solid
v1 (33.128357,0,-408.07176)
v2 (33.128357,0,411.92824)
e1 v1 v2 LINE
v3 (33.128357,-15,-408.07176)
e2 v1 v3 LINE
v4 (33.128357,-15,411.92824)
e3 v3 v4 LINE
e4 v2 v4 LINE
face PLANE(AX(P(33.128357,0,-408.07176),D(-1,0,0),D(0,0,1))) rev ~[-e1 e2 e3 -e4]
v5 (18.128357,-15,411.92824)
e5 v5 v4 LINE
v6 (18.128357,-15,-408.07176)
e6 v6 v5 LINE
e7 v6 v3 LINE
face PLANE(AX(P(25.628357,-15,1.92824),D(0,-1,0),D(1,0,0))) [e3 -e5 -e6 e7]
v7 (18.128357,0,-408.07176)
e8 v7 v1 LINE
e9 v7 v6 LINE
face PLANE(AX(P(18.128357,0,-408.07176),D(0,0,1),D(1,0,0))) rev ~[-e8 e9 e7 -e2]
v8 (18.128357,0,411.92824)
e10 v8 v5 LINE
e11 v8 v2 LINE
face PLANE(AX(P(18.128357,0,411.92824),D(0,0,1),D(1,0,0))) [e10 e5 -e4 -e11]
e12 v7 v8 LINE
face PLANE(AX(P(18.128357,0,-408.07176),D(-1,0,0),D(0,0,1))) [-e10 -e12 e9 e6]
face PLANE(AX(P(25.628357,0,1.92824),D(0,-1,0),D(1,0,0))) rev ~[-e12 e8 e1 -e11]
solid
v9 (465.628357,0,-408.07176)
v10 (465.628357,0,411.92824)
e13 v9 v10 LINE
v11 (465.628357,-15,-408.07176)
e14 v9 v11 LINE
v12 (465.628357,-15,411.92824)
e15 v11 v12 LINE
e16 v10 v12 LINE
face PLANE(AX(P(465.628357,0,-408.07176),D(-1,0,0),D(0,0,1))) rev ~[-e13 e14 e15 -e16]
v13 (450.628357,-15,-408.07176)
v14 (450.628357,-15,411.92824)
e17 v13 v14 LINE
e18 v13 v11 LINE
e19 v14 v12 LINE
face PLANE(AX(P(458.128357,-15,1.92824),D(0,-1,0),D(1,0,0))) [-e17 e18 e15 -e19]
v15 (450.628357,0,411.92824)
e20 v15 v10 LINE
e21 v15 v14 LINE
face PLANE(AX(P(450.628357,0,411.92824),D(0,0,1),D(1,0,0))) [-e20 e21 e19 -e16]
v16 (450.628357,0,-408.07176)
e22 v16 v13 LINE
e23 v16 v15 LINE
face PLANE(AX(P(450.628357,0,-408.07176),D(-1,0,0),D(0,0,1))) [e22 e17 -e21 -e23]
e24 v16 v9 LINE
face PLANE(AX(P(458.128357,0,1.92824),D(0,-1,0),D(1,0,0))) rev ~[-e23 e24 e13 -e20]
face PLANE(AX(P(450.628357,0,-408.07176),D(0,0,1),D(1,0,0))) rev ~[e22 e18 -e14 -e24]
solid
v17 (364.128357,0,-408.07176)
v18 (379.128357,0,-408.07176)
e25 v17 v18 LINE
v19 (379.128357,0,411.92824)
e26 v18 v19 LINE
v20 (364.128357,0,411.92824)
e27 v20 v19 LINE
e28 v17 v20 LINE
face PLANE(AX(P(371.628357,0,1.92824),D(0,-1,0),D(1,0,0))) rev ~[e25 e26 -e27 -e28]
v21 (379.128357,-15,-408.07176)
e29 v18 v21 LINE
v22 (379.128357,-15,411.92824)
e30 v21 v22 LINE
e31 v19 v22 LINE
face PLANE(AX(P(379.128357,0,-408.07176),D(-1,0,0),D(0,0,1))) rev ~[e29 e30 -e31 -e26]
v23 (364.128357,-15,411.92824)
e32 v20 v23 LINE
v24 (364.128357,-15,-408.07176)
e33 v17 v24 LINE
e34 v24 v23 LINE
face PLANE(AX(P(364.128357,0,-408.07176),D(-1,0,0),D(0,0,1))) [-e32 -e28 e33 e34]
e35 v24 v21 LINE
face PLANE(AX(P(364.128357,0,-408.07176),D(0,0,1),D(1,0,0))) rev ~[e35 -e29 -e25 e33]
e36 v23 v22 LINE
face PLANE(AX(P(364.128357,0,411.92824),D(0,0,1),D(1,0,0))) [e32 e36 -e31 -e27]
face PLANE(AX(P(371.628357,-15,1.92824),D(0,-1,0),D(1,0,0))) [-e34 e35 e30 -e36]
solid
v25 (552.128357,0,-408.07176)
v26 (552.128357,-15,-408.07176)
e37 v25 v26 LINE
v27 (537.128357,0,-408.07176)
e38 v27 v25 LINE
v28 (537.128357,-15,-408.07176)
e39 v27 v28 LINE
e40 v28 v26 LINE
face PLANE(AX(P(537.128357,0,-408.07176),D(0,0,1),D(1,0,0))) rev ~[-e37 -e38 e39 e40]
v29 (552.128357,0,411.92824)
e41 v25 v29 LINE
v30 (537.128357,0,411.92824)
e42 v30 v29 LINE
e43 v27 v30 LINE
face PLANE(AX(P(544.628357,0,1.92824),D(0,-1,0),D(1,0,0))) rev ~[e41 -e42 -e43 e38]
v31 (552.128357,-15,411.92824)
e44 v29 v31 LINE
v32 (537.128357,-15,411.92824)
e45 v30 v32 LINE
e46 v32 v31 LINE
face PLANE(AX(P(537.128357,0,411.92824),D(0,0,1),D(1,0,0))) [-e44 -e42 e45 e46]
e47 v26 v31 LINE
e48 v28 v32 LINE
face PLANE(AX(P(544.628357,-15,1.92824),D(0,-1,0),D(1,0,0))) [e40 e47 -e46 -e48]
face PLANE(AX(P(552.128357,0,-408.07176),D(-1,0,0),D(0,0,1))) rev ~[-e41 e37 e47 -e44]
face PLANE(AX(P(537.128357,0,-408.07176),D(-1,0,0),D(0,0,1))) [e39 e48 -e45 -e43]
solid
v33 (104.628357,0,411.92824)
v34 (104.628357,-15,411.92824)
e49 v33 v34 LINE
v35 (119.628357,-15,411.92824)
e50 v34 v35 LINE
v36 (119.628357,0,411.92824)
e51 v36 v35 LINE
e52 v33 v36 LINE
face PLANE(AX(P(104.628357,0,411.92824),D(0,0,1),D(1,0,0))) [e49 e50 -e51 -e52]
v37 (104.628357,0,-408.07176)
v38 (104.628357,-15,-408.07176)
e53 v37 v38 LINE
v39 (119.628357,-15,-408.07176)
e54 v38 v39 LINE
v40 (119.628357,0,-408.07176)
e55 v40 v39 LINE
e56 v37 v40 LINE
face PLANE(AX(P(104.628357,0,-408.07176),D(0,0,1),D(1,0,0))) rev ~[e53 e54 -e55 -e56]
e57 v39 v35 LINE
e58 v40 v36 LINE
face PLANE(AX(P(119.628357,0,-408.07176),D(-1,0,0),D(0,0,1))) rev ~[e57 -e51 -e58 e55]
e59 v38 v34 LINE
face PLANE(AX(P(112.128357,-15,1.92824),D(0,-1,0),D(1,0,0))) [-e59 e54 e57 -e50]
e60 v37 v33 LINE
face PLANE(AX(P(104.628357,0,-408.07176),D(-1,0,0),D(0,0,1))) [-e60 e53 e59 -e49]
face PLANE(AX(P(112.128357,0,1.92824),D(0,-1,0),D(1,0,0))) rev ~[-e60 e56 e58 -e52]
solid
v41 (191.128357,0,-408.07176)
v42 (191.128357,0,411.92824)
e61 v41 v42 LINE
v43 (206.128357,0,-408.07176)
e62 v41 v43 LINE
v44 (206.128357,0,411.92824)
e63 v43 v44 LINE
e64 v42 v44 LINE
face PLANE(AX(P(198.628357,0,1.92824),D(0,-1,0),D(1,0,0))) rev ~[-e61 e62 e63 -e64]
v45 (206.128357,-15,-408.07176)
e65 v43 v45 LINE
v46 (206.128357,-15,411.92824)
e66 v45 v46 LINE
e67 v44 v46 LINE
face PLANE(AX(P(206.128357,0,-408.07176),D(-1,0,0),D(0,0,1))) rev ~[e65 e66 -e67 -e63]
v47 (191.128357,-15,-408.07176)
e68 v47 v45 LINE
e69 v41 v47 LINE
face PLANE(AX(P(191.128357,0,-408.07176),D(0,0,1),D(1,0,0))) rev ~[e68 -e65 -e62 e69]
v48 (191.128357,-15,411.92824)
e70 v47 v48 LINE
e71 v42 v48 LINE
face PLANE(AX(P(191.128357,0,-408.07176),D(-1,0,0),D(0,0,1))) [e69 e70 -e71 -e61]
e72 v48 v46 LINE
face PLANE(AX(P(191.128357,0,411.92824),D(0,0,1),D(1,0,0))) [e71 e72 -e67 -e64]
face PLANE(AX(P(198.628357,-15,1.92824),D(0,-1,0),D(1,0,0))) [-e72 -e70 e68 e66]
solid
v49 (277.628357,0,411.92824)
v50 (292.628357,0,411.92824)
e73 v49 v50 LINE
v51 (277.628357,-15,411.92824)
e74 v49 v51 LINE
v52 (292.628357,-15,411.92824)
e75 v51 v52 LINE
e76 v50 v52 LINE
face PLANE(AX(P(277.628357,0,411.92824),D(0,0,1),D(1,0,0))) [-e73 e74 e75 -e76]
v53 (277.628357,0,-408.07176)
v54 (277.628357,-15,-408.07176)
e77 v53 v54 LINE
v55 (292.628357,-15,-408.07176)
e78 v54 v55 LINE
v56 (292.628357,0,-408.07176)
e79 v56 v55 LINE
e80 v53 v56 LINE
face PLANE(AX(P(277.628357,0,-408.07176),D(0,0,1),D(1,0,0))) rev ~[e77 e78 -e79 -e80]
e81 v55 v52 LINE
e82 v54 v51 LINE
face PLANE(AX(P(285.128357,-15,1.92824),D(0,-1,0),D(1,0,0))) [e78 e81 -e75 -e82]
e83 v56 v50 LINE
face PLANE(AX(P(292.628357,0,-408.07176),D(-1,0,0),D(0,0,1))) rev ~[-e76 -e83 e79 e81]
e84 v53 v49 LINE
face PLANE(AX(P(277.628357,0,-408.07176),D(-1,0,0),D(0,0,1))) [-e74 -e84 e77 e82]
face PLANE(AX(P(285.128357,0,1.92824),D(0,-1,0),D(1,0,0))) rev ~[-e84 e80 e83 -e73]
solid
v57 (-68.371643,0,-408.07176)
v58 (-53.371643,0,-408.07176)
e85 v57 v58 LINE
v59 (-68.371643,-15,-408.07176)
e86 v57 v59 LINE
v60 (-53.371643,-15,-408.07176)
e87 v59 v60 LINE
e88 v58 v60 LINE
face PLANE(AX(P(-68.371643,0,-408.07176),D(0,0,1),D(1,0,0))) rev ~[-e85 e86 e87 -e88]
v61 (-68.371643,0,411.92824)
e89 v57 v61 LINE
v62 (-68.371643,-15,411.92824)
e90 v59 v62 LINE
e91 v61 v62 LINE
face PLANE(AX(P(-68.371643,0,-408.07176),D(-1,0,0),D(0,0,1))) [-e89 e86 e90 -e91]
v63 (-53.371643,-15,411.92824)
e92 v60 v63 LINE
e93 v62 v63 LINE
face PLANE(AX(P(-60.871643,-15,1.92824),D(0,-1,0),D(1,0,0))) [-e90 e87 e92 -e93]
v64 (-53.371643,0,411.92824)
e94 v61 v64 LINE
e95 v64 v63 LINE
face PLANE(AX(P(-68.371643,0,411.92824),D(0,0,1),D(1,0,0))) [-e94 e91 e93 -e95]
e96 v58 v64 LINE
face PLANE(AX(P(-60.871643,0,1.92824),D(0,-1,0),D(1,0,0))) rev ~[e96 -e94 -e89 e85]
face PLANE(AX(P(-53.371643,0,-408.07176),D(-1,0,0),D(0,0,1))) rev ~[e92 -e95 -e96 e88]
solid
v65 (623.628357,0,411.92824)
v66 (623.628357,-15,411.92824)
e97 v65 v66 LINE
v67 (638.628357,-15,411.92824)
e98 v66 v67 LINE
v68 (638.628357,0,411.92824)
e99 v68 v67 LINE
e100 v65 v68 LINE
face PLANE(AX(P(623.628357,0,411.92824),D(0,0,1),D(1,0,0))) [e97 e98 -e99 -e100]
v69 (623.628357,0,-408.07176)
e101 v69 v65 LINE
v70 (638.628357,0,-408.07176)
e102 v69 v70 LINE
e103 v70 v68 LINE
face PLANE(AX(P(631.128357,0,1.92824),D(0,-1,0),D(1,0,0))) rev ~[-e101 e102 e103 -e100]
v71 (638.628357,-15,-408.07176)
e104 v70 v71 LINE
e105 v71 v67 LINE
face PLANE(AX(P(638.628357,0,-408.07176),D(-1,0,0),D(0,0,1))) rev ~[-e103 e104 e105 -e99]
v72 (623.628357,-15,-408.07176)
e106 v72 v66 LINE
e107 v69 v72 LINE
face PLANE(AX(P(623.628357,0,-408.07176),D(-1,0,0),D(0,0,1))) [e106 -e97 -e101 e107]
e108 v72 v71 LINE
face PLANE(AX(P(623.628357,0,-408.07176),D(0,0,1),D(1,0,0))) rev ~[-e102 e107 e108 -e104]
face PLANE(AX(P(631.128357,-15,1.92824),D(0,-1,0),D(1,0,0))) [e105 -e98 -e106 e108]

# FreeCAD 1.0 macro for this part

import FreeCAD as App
import Part
import Sketcher

V = App.Vector

doc = App.newDocument("Part")
body = doc.addObject("PartDesign::Body", "Body")
body.AllowCompound = True

# Sketch on XZ plane
sketch1 = body.newObject("Sketcher::SketchObject", "Sketch")
sketch1.AttachmentSupport = (doc.getObject("XZ_Plane"), [""])
sketch1.MapMode = "FlatFace"
sketch1.addGeometry([
    Part.LineSegment(V(-68.371643, 411.92824, 0), V(-68.371643, -408.07176, 0)),  # 0
    Part.LineSegment(V(-68.371643, -408.07176, 0), V(-53.371643, -408.07176, 0)),  # 1
    Part.LineSegment(V(-53.371643, -408.07176, 0), V(-53.371643, 411.92824, 0)),  # 2
    Part.LineSegment(V(-53.371643, 411.92824, 0), V(-68.371643, 411.92824, 0)),  # 3
    Part.LineSegment(V(18.128357, 411.92824, 0), V(18.128357, -408.07176, 0)),  # 4
    Part.LineSegment(V(18.128357, -408.07176, 0), V(33.128357, -408.07176, 0)),  # 5
    Part.LineSegment(V(33.128357, -408.07176, 0), V(33.128357, 411.92824, 0)),  # 6
    Part.LineSegment(V(33.128357, 411.92824, 0), V(18.128357, 411.92824, 0)),  # 7
    Part.LineSegment(V(104.628357, 411.92824, 0), V(104.628357, -408.07176, 0)),  # 8
    Part.LineSegment(V(104.628357, -408.07176, 0), V(119.628357, -408.07176, 0)),  # 9
    Part.LineSegment(V(119.628357, -408.07176, 0), V(119.628357, 411.92824, 0)),  # 10
    Part.LineSegment(V(119.628357, 411.92824, 0), V(104.628357, 411.92824, 0)),  # 11
    Part.LineSegment(V(191.128357, 411.92824, 0), V(191.128357, -408.07176, 0)),  # 12
    Part.LineSegment(V(191.128357, -408.07176, 0), V(206.128357, -408.07176, 0)),  # 13
    Part.LineSegment(V(206.128357, -408.07176, 0), V(206.128357, 411.92824, 0)),  # 14
    Part.LineSegment(V(206.128357, 411.92824, 0), V(191.128357, 411.92824, 0)),  # 15
    Part.LineSegment(V(277.628357, 411.92824, 0), V(277.628357, -408.07176, 0)),  # 16
    Part.LineSegment(V(277.628357, -408.07176, 0), V(292.628357, -408.07176, 0)),  # 17
    Part.LineSegment(V(292.628357, -408.07176, 0), V(292.628357, 411.92824, 0)),  # 18
    Part.LineSegment(V(292.628357, 411.92824, 0), V(277.628357, 411.92824, 0)),  # 19
    Part.LineSegment(V(364.128357, 411.92824, 0), V(364.128357, -408.07176, 0)),  # 20
    Part.LineSegment(V(364.128357, -408.07176, 0), V(379.128357, -408.07176, 0)),  # 21
    Part.LineSegment(V(379.128357, -408.07176, 0), V(379.128357, 411.92824, 0)),  # 22
    Part.LineSegment(V(379.128357, 411.92824, 0), V(364.128357, 411.92824, 0)),  # 23
    Part.LineSegment(V(450.628357, 411.92824, 0), V(450.628357, -408.07176, 0)),  # 24
    Part.LineSegment(V(450.628357, -408.07176, 0), V(465.628357, -408.07176, 0)),  # 25
    Part.LineSegment(V(465.628357, -408.07176, 0), V(465.628357, 411.92824, 0)),  # 26
    Part.LineSegment(V(465.628357, 411.92824, 0), V(450.628357, 411.92824, 0)),  # 27
    Part.LineSegment(V(537.128357, 411.92824, 0), V(537.128357, -408.07176, 0)),  # 28
    Part.LineSegment(V(537.128357, -408.07176, 0), V(552.128357, -408.07176, 0)),  # 29
    Part.LineSegment(V(552.128357, -408.07176, 0), V(552.128357, 411.92824, 0)),  # 30
    Part.LineSegment(V(552.128357, 411.92824, 0), V(537.128357, 411.92824, 0)),  # 31
    Part.LineSegment(V(623.628357, 411.92824, 0), V(623.628357, -408.07176, 0)),  # 32
    Part.LineSegment(V(623.628357, -408.07176, 0), V(638.628357, -408.07176, 0)),  # 33
    Part.LineSegment(V(638.628357, -408.07176, 0), V(638.628357, 411.92824, 0)),  # 34
    Part.LineSegment(V(638.628357, 411.92824, 0), V(623.628357, 411.92824, 0)),  # 35
], False)
sketch1.addConstraint([
    Sketcher.Constraint("Coincident", 0, 2, 1, 1),
    Sketcher.Constraint("Coincident", 1, 2, 2, 1),
    Sketcher.Constraint("Coincident", 2, 2, 3, 1),
    Sketcher.Constraint("Coincident", 3, 2, 0, 1),
    Sketcher.Constraint("Coincident", 4, 2, 5, 1),
    Sketcher.Constraint("Coincident", 5, 2, 6, 1),
    Sketcher.Constraint("Coincident", 6, 2, 7, 1),
    Sketcher.Constraint("Coincident", 7, 2, 4, 1),
    Sketcher.Constraint("Coincident", 8, 2, 9, 1),
    Sketcher.Constraint("Coincident", 9, 2, 10, 1),
    Sketcher.Constraint("Coincident", 10, 2, 11, 1),
    Sketcher.Constraint("Coincident", 11, 2, 8, 1),
    Sketcher.Constraint("Coincident", 12, 2, 13, 1),
    Sketcher.Constraint("Coincident", 13, 2, 14, 1),
    Sketcher.Constraint("Coincident", 14, 2, 15, 1),
    Sketcher.Constraint("Coincident", 15, 2, 12, 1),
    Sketcher.Constraint("Coincident", 16, 2, 17, 1),
    Sketcher.Constraint("Coincident", 17, 2, 18, 1),
    Sketcher.Constraint("Coincident", 18, 2, 19, 1),
    Sketcher.Constraint("Coincident", 19, 2, 16, 1),
    Sketcher.Constraint("Coincident", 20, 2, 21, 1),
    Sketcher.Constraint("Coincident", 21, 2, 22, 1),
    Sketcher.Constraint("Coincident", 22, 2, 23, 1),
    Sketcher.Constraint("Coincident", 23, 2, 20, 1),
    Sketcher.Constraint("Coincident", 24, 2, 25, 1),
    Sketcher.Constraint("Coincident", 25, 2, 26, 1),
    Sketcher.Constraint("Coincident", 26, 2, 27, 1),
    Sketcher.Constraint("Coincident", 27, 2, 24, 1),
    Sketcher.Constraint("Coincident", 28, 2, 29, 1),
    Sketcher.Constraint("Coincident", 29, 2, 30, 1),
    Sketcher.Constraint("Coincident", 30, 2, 31, 1),
    Sketcher.Constraint("Coincident", 31, 2, 28, 1),
    Sketcher.Constraint("Coincident", 32, 2, 33, 1),
    Sketcher.Constraint("Coincident", 33, 2, 34, 1),
    Sketcher.Constraint("Coincident", 34, 2, 35, 1),
    Sketcher.Constraint("Coincident", 35, 2, 32, 1),
    Sketcher.Constraint("Vertical", 0),
    Sketcher.Constraint("Horizontal", 1),
    Sketcher.Constraint("Vertical", 2),
    Sketcher.Constraint("Horizontal", 3),
    Sketcher.Constraint("Vertical", 4),
    Sketcher.Constraint("Horizontal", 5),
    Sketcher.Constraint("Vertical", 6),
    Sketcher.Constraint("Horizontal", 7),
    Sketcher.Constraint("Vertical", 8),
    Sketcher.Constraint("Horizontal", 9),
    Sketcher.Constraint("Vertical", 10),
    Sketcher.Constraint("Horizontal", 11),
    Sketcher.Constraint("Vertical", 12),
    Sketcher.Constraint("Horizontal", 13),
    Sketcher.Constraint("Vertical", 14),
    Sketcher.Constraint("Horizontal", 15),
    Sketcher.Constraint("Vertical", 16),
    Sketcher.Constraint("Horizontal", 17),
    Sketcher.Constraint("Vertical", 18),
    Sketcher.Constraint("Horizontal", 19),
    Sketcher.Constraint("Vertical", 20),
    Sketcher.Constraint("Horizontal", 21),
    Sketcher.Constraint("Vertical", 22),
    Sketcher.Constraint("Horizontal", 23),
    Sketcher.Constraint("Vertical", 24),
    Sketcher.Constraint("Horizontal", 25),
    Sketcher.Constraint("Vertical", 26),
    Sketcher.Constraint("Horizontal", 27),
    Sketcher.Constraint("Vertical", 28),
    Sketcher.Constraint("Horizontal", 29),
    Sketcher.Constraint("Vertical", 30),
    Sketcher.Constraint("Horizontal", 31),
    Sketcher.Constraint("Vertical", 32),
    Sketcher.Constraint("Horizontal", 33),
    Sketcher.Constraint("Vertical", 34),
    Sketcher.Constraint("Horizontal", 35),
    Sketcher.Constraint("Horizontal", 1, 2, 4, 2),
    Sketcher.Constraint("Horizontal", 3, 2, 6, 2),
    Sketcher.Constraint("Horizontal", 5, 2, 8, 2),
    Sketcher.Constraint("Horizontal", 7, 2, 10, 2),
    Sketcher.Constraint("Horizontal", 9, 2, 12, 2),
    Sketcher.Constraint("Horizontal", 11, 2, 14, 2),
    Sketcher.Constraint("Horizontal", 13, 2, 16, 2),
    Sketcher.Constraint("Horizontal", 15, 2, 18, 2),
    Sketcher.Constraint("Horizontal", 17, 2, 20, 2),
    Sketcher.Constraint("Horizontal", 19, 2, 22, 2),
    Sketcher.Constraint("Horizontal", 21, 2, 24, 2),
    Sketcher.Constraint("Horizontal", 23, 2, 26, 2),
    Sketcher.Constraint("Horizontal", 25, 2, 28, 2),
    Sketcher.Constraint("Horizontal", 27, 2, 30, 2),
    Sketcher.Constraint("Horizontal", 29, 2, 32, 2),
    Sketcher.Constraint("Horizontal", 31, 2, 34, 2),
    Sketcher.Constraint("Equal", 3, 5),
    Sketcher.Constraint("Equal", 7, 9),
    Sketcher.Constraint("Equal", 11, 13),
    Sketcher.Constraint("Equal", 15, 17),
    Sketcher.Constraint("Equal", 19, 21),
    Sketcher.Constraint("Equal", 23, 25),
    Sketcher.Constraint("Equal", 27, 29),
    Sketcher.Constraint("Equal", 31, 33),
    Sketcher.Constraint("DistanceX", 1, 1, 1, 2, 15.0),
    Sketcher.Constraint("DistanceY", 0, 2, 0, 1, 820.0),
    Sketcher.Constraint("DistanceX", 1, 2, 8, 2, 158.0),
    Sketcher.Constraint("DistanceX", 5, 2, 12, 2, 158.0),
    Sketcher.Constraint("DistanceX", 9, 2, 16, 2, 158.0),
    Sketcher.Constraint("DistanceX", 13, 2, 20, 2, 158.0),
    Sketcher.Constraint("DistanceX", 17, 2, 24, 2, 158.0),
    Sketcher.Constraint("DistanceX", 21, 2, 28, 2, 158.0),
    Sketcher.Constraint("DistanceX", 25, 2, 32, 2, 158.0),
    Sketcher.Constraint("DistanceX", 1, 2, 4, 2, 71.5),
    Sketcher.Constraint("DistanceY", 0, 2, -1, 1, 408.07176),
    Sketcher.Constraint("DistanceX", 0, 2, -1, 1, 68.371643),
])
pad1 = body.newObject("PartDesign::Pad", "Pad")
pad1.Profile = sketch1
pad1.Length = 15

doc.recompute()
